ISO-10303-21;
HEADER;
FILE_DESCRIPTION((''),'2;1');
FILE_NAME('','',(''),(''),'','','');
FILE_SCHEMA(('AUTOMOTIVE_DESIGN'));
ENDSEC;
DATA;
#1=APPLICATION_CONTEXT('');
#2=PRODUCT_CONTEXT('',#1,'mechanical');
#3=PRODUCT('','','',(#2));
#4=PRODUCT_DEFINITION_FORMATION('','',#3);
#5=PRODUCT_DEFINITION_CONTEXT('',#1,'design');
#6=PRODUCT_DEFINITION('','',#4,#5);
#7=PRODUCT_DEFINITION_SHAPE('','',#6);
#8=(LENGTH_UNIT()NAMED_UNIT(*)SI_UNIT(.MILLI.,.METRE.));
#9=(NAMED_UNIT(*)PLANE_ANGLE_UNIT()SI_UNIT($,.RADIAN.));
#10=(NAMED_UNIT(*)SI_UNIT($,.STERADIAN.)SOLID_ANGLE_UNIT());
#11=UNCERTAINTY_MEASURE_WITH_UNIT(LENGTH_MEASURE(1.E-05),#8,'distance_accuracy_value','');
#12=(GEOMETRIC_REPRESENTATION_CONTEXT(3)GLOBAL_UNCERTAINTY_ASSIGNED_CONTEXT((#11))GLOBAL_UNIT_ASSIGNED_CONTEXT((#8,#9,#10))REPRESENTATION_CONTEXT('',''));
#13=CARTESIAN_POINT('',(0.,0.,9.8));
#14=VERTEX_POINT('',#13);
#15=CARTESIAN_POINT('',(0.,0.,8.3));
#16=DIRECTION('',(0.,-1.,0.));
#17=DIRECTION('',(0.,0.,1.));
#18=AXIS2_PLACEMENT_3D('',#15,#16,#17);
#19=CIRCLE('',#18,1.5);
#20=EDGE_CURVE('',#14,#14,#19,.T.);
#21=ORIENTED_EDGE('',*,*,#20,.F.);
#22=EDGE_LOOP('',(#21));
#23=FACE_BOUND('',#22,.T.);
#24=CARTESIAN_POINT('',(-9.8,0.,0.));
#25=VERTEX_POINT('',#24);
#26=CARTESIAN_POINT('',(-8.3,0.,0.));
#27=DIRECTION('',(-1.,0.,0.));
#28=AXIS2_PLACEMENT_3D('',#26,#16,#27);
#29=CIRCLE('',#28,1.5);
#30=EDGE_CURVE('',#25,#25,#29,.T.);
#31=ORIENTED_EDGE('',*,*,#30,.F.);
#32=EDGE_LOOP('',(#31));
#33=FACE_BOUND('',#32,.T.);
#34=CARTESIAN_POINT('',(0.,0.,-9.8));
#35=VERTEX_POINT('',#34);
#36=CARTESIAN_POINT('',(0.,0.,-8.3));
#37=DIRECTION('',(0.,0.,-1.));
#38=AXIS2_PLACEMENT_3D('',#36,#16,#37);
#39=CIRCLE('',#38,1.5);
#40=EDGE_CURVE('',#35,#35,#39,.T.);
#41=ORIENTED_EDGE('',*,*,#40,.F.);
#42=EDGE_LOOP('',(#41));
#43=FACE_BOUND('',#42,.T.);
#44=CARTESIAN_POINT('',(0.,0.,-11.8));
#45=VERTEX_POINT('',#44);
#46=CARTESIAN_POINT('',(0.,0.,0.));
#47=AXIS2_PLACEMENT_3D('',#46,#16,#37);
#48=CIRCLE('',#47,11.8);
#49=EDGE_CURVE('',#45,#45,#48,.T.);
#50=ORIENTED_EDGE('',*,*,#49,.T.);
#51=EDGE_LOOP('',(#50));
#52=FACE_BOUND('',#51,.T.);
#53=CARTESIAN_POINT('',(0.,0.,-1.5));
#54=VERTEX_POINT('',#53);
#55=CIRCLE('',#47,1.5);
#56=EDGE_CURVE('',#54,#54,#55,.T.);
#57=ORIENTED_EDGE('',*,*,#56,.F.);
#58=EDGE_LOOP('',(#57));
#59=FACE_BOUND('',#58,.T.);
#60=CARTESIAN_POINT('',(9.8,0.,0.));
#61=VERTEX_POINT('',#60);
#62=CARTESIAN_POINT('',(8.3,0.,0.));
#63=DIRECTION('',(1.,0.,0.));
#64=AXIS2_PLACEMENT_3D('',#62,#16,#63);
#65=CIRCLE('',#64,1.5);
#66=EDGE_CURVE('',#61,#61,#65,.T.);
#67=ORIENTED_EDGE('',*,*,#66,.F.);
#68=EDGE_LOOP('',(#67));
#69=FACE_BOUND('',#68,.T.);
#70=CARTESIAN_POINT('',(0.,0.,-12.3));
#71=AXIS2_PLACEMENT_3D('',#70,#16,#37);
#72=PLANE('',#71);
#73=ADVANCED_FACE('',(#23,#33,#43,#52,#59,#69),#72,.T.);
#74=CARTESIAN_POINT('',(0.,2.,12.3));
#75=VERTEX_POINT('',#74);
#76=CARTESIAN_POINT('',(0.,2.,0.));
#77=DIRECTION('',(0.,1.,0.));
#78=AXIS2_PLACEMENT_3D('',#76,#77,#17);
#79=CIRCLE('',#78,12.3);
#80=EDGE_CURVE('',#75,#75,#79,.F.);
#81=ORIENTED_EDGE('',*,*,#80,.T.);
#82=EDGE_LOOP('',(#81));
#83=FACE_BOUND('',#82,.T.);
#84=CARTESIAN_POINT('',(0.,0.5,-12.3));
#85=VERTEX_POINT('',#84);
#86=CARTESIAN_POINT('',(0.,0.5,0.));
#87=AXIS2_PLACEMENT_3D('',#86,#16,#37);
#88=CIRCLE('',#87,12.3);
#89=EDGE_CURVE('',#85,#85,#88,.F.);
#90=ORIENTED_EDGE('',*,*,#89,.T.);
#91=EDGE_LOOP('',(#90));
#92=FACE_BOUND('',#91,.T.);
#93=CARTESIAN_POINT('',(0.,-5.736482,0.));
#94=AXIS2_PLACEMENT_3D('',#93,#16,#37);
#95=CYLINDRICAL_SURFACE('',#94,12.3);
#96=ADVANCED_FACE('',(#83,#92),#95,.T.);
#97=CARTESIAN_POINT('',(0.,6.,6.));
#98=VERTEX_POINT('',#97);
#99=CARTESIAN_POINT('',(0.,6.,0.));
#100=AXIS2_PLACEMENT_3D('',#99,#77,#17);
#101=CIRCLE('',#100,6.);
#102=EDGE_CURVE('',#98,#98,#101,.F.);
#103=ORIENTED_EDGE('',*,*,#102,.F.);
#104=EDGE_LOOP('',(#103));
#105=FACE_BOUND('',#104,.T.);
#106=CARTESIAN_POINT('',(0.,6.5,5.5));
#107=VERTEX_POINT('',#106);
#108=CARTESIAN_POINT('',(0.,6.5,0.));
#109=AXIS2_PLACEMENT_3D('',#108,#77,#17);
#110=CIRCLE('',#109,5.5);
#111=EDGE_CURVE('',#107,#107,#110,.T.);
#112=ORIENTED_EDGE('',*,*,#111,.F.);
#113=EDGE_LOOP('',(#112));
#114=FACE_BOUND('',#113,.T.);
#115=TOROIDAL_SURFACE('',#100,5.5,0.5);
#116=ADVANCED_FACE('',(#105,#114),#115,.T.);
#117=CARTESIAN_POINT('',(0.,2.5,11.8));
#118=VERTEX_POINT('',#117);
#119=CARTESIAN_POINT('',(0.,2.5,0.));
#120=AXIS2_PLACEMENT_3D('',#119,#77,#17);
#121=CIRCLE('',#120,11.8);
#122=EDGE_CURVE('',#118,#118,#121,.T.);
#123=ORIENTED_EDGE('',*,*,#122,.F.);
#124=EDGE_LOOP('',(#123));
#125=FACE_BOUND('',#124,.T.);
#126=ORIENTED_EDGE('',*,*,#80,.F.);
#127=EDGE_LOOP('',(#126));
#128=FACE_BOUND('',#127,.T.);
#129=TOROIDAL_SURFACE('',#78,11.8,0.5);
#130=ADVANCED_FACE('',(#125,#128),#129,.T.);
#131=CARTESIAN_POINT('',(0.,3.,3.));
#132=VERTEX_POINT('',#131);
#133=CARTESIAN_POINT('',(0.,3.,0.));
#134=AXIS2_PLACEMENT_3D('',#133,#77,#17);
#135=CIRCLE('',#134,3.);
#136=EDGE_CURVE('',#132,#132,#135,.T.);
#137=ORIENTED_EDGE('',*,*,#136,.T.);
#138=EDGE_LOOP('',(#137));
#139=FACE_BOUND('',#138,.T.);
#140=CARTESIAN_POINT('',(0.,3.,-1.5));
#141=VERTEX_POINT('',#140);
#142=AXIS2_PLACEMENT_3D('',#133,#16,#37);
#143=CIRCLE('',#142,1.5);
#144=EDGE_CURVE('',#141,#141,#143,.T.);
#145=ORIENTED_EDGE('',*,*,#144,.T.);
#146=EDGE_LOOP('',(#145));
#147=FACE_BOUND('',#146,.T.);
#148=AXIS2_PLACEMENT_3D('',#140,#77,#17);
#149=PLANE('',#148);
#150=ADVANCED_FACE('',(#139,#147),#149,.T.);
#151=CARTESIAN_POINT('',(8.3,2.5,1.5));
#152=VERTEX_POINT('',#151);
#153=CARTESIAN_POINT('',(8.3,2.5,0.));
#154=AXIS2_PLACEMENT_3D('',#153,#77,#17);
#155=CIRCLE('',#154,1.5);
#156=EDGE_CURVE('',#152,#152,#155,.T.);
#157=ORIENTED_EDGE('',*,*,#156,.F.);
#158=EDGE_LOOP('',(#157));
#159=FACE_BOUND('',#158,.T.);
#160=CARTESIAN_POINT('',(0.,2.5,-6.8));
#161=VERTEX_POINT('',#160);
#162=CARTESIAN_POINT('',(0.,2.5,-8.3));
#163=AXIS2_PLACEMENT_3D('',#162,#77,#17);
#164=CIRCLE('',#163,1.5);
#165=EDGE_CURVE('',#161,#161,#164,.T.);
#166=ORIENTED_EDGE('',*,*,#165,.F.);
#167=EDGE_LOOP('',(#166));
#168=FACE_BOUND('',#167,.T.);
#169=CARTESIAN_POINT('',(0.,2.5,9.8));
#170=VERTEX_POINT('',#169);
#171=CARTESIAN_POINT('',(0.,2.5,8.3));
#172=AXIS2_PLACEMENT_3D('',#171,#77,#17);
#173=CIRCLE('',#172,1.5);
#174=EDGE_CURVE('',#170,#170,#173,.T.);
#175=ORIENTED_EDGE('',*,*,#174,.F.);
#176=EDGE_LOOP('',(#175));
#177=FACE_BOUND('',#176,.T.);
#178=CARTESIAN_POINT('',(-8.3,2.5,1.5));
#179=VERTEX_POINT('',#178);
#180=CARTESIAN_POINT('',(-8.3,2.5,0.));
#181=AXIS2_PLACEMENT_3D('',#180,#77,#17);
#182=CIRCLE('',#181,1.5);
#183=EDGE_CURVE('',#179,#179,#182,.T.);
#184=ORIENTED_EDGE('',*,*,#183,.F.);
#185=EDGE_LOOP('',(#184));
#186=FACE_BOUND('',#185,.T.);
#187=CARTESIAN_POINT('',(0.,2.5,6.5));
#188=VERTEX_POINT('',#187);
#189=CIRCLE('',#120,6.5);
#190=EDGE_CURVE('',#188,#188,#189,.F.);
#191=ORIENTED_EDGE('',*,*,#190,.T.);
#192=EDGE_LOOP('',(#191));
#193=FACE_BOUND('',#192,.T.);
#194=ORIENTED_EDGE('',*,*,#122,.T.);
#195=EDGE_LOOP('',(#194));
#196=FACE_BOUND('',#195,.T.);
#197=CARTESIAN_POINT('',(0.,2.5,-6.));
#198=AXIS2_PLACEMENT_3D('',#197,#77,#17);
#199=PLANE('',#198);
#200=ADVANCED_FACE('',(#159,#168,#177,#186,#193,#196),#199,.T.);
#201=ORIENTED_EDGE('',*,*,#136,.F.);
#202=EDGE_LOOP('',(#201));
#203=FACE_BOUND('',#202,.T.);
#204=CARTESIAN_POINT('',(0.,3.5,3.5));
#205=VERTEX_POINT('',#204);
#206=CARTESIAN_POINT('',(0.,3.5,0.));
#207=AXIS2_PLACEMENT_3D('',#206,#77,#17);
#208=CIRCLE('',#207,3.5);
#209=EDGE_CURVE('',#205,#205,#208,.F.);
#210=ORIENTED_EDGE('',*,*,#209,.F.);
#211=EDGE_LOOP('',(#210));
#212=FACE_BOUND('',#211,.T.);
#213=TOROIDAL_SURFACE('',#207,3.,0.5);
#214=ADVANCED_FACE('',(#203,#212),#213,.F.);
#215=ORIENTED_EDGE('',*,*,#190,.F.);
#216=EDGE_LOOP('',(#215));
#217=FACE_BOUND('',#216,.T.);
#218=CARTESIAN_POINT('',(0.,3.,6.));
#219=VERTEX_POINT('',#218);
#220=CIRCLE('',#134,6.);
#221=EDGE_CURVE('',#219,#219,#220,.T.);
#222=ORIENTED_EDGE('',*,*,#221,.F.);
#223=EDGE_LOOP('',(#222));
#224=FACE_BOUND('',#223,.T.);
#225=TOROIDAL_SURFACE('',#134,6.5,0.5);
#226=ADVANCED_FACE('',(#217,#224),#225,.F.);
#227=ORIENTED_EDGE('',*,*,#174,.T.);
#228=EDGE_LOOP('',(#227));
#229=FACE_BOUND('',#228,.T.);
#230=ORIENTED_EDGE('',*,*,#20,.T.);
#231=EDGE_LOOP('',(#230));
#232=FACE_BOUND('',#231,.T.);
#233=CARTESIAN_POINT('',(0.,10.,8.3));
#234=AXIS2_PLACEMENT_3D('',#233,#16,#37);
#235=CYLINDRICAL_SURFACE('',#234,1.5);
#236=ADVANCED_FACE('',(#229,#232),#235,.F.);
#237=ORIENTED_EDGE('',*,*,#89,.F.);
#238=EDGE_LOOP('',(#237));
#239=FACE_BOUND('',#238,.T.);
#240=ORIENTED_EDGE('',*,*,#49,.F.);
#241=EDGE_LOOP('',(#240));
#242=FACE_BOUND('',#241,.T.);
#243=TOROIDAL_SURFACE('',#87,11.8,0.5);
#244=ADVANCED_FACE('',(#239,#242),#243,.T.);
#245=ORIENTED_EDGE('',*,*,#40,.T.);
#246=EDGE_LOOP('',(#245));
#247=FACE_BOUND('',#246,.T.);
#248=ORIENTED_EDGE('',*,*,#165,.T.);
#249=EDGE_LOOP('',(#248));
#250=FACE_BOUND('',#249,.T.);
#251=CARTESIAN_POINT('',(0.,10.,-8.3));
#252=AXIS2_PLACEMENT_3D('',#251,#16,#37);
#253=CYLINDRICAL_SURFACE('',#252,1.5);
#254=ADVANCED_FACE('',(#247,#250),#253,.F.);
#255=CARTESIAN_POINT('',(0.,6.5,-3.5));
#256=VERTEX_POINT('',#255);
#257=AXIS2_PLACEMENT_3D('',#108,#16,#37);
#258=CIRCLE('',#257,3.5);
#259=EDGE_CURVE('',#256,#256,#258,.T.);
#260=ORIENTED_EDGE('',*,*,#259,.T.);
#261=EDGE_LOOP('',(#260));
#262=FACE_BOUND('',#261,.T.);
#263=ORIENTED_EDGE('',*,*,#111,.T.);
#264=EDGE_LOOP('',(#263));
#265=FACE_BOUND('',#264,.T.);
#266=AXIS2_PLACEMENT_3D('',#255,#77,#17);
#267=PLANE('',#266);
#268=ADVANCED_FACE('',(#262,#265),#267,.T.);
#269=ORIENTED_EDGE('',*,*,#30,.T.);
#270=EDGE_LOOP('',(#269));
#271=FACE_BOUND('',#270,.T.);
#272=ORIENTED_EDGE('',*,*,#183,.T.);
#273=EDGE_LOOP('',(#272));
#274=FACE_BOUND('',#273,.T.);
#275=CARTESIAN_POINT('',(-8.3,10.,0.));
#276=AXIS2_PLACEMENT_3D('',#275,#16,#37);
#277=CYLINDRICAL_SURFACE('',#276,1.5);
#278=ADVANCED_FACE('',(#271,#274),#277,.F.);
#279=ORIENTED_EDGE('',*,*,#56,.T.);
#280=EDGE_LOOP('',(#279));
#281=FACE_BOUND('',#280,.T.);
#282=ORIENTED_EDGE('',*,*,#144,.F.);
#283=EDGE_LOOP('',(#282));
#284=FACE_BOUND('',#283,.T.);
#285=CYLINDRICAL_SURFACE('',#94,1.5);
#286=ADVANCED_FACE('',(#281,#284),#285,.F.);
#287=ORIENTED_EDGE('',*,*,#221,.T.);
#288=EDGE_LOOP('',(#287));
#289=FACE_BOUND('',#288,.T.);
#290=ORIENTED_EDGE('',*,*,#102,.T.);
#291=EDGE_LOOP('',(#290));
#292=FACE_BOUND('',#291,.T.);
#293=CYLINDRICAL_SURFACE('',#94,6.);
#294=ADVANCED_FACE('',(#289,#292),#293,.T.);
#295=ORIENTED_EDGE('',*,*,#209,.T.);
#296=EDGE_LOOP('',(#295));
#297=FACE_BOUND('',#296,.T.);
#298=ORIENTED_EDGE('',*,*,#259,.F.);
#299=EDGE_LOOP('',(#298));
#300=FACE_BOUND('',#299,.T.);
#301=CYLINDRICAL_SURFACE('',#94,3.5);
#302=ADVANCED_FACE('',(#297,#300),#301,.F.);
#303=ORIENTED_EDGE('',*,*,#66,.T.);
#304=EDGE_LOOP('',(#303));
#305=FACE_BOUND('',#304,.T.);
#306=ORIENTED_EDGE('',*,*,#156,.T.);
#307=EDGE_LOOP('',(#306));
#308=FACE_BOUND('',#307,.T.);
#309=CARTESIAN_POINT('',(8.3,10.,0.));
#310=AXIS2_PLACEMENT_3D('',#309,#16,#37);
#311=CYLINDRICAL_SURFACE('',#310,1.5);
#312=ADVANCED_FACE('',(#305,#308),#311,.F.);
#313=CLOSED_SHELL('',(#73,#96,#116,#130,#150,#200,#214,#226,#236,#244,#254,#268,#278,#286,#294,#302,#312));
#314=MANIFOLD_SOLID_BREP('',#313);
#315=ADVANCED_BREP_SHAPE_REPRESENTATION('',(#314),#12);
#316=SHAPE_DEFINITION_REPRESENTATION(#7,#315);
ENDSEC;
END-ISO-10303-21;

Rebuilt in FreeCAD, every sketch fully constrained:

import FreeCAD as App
import Part
import Sketcher


def edges_at(feature, points):
    """Names of the edges that pass closest to the given points."""
    edges = feature.Shape.Edges
    near = lambda p: min(range(len(edges)), key=lambda i: edges[i].distToShape(Part.Vertex(*p))[0])
    return sorted({f"Edge{near(p) + 1}" for p in points})

doc = App.newDocument("Part")
body = doc.addObject("PartDesign::Body", "Body")

# Sketch on YZ plane
sketch1 = doc.addObject("Sketcher::SketchObject", "Sketch")
body.addObject(sketch1)
sketch1.AttachmentSupport = (doc.YZ_Plane, [""])
sketch1.MapMode = "FlatFace"
sketch1.addGeometry(Part.LineSegment(App.Vector(3, -1.5, 0), App.Vector(0, -1.5, 0)), False)
sketch1.addGeometry(Part.LineSegment(App.Vector(0, -1.5, 0), App.Vector(0, -12.3, 0)), False)
sketch1.addGeometry(Part.LineSegment(App.Vector(0, -12.3, 0), App.Vector(2.5, -12.3, 0)), False)
sketch1.addGeometry(Part.LineSegment(App.Vector(2.5, -12.3, 0), App.Vector(2.5, -6, 0)), False)
sketch1.addGeometry(Part.LineSegment(App.Vector(2.5, -6, 0), App.Vector(6.5, -6, 0)), False)
sketch1.addGeometry(Part.LineSegment(App.Vector(6.5, -6, 0), App.Vector(6.5, -3.5, 0)), False)
sketch1.addGeometry(Part.LineSegment(App.Vector(6.5, -3.5, 0), App.Vector(3, -3.5, 0)), False)
sketch1.addGeometry(Part.LineSegment(App.Vector(3, -3.5, 0), App.Vector(3, -1.5, 0)), False)
sketch1.addConstraint(Sketcher.Constraint("Coincident", 0, 2, 1, 1))
sketch1.addConstraint(Sketcher.Constraint("Coincident", 1, 2, 2, 1))
sketch1.addConstraint(Sketcher.Constraint("Coincident", 2, 2, 3, 1))
sketch1.addConstraint(Sketcher.Constraint("Coincident", 3, 2, 4, 1))
sketch1.addConstraint(Sketcher.Constraint("Coincident", 4, 2, 5, 1))
sketch1.addConstraint(Sketcher.Constraint("Coincident", 5, 2, 6, 1))
sketch1.addConstraint(Sketcher.Constraint("Coincident", 6, 2, 7, 1))
sketch1.addConstraint(Sketcher.Constraint("Coincident", 7, 2, 0, 1))
sketch1.addConstraint(Sketcher.Constraint("Horizontal", 0))
sketch1.addConstraint(Sketcher.Constraint("Vertical", 1))
sketch1.addConstraint(Sketcher.Constraint("Horizontal", 2))
sketch1.addConstraint(Sketcher.Constraint("Vertical", 3))
sketch1.addConstraint(Sketcher.Constraint("Horizontal", 4))
sketch1.addConstraint(Sketcher.Constraint("Vertical", 5))
sketch1.addConstraint(Sketcher.Constraint("Horizontal", 6))
sketch1.addConstraint(Sketcher.Constraint("Vertical", 7))
sketch1.addConstraint(Sketcher.Constraint("PointOnObject", 0, 2, -2))
sketch1.addConstraint(Sketcher.Constraint("Equal", 2, 5))
sketch1.addConstraint(Sketcher.Constraint("DistanceX", 0, 2, 0, 1, 3.0))
sketch1.addConstraint(Sketcher.Constraint("DistanceX", 4, 1, 4, 2, 4.0))
sketch1.addConstraint(Sketcher.Constraint("DistanceY", 7, 1, 7, 2, 2.0))
sketch1.addConstraint(Sketcher.Constraint("DistanceX", 2, 1, 2, 2, 2.5))
sketch1.addConstraint(Sketcher.Constraint("DistanceY", 1, 2, 1, 1, 10.8))
sketch1.addConstraint(Sketcher.Constraint("DistanceY", 3, 2, -1, 1, 6.0))
revolution = doc.addObject("PartDesign::Revolution", "Revolution")
body.addObject(revolution)
revolution.Profile = sketch1
revolution.ReferenceAxis = (sketch1, ["H_Axis"])
revolution.Angle = 360

# Sketch on XZ plane
sketch2 = doc.addObject("Sketcher::SketchObject", "Sketch001")
body.addObject(sketch2)
sketch2.AttachmentSupport = (doc.XZ_Plane, [""])
sketch2.MapMode = "FlatFace"
sketch2.addGeometry(Part.Circle(App.Vector(0, -8.3, 0), App.Vector(0, 0, 1), 1.5), False)
sketch2.addConstraint(Sketcher.Constraint("PointOnObject", 0, 3, -2))
sketch2.addConstraint(Sketcher.Constraint("Diameter", 0, 3.0))
sketch2.addConstraint(Sketcher.Constraint("DistanceY", 0, 3, -1, 1, 8.3))
pocket1 = doc.addObject("PartDesign::Pocket", "Pocket")
body.addObject(pocket1)
pocket1.Profile = sketch2
pocket1.Length = 10
doc.recompute()

polarpattern = doc.addObject("PartDesign::PolarPattern", "PolarPattern")
body.addObject(polarpattern)
polarpattern.Originals = [pocket1]
polarpattern.Axis = (doc.Y_Axis, [""])
polarpattern.Angle = 360
polarpattern.Occurrences = 4
body.Tip = polarpattern
doc.recompute()

fillet = doc.addObject("PartDesign::Fillet", "Fillet")
body.addObject(fillet)
fillet.Base = (polarpattern, edges_at(polarpattern, [
    (0, 0, 12.3),
    (0, 2.5, 12.3),
    (0, 2.5, 6),
    (0, 6.5, 6),
    (0, 3, 3.5),
]))
fillet.Radius = 0.5

doc.recompute()
